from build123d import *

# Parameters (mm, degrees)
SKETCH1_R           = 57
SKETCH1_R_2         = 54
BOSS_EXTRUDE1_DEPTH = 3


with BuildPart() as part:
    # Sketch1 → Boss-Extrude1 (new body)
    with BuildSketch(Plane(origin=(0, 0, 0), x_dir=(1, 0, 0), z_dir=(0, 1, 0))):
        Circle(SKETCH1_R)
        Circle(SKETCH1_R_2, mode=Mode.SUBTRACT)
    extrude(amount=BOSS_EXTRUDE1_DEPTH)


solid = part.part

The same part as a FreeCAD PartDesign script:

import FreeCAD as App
import Part
import Sketcher

V = App.Vector
Q = App.Units.Quantity

doc = App.newDocument("Part")
body = doc.addObject("PartDesign::Body", "Body")

# Sketch on XZ plane
sketch1 = body.newObject("Sketcher::SketchObject", "Sketch")
sketch1.AttachmentSupport = (doc.getObject("XZ_Plane"), [""])
sketch1.MapMode = "FlatFace"
sketch1.addGeometry(Part.Circle(V(0, 0, 0), V(0, 0, 1), 57), False)
sketch1.addGeometry(Part.Circle(V(0, 0, 0), V(0, 0, 1), 54), False)
sketch1.addConstraint(Sketcher.Constraint("Coincident", 0, 3, -1, 1))
sketch1.addConstraint(Sketcher.Constraint("Coincident", 1, 3, -1, 1))
sketch1.addConstraint(Sketcher.Constraint("Diameter", 0, Q("114 mm")))
sketch1.addConstraint(Sketcher.Constraint("Diameter", 1, Q("108 mm")))
pad1 = body.newObject("PartDesign::Pad", "Pad")
pad1.Profile = sketch1
pad1.Length = 3
pad1.Reversed = True

doc.recompute()
